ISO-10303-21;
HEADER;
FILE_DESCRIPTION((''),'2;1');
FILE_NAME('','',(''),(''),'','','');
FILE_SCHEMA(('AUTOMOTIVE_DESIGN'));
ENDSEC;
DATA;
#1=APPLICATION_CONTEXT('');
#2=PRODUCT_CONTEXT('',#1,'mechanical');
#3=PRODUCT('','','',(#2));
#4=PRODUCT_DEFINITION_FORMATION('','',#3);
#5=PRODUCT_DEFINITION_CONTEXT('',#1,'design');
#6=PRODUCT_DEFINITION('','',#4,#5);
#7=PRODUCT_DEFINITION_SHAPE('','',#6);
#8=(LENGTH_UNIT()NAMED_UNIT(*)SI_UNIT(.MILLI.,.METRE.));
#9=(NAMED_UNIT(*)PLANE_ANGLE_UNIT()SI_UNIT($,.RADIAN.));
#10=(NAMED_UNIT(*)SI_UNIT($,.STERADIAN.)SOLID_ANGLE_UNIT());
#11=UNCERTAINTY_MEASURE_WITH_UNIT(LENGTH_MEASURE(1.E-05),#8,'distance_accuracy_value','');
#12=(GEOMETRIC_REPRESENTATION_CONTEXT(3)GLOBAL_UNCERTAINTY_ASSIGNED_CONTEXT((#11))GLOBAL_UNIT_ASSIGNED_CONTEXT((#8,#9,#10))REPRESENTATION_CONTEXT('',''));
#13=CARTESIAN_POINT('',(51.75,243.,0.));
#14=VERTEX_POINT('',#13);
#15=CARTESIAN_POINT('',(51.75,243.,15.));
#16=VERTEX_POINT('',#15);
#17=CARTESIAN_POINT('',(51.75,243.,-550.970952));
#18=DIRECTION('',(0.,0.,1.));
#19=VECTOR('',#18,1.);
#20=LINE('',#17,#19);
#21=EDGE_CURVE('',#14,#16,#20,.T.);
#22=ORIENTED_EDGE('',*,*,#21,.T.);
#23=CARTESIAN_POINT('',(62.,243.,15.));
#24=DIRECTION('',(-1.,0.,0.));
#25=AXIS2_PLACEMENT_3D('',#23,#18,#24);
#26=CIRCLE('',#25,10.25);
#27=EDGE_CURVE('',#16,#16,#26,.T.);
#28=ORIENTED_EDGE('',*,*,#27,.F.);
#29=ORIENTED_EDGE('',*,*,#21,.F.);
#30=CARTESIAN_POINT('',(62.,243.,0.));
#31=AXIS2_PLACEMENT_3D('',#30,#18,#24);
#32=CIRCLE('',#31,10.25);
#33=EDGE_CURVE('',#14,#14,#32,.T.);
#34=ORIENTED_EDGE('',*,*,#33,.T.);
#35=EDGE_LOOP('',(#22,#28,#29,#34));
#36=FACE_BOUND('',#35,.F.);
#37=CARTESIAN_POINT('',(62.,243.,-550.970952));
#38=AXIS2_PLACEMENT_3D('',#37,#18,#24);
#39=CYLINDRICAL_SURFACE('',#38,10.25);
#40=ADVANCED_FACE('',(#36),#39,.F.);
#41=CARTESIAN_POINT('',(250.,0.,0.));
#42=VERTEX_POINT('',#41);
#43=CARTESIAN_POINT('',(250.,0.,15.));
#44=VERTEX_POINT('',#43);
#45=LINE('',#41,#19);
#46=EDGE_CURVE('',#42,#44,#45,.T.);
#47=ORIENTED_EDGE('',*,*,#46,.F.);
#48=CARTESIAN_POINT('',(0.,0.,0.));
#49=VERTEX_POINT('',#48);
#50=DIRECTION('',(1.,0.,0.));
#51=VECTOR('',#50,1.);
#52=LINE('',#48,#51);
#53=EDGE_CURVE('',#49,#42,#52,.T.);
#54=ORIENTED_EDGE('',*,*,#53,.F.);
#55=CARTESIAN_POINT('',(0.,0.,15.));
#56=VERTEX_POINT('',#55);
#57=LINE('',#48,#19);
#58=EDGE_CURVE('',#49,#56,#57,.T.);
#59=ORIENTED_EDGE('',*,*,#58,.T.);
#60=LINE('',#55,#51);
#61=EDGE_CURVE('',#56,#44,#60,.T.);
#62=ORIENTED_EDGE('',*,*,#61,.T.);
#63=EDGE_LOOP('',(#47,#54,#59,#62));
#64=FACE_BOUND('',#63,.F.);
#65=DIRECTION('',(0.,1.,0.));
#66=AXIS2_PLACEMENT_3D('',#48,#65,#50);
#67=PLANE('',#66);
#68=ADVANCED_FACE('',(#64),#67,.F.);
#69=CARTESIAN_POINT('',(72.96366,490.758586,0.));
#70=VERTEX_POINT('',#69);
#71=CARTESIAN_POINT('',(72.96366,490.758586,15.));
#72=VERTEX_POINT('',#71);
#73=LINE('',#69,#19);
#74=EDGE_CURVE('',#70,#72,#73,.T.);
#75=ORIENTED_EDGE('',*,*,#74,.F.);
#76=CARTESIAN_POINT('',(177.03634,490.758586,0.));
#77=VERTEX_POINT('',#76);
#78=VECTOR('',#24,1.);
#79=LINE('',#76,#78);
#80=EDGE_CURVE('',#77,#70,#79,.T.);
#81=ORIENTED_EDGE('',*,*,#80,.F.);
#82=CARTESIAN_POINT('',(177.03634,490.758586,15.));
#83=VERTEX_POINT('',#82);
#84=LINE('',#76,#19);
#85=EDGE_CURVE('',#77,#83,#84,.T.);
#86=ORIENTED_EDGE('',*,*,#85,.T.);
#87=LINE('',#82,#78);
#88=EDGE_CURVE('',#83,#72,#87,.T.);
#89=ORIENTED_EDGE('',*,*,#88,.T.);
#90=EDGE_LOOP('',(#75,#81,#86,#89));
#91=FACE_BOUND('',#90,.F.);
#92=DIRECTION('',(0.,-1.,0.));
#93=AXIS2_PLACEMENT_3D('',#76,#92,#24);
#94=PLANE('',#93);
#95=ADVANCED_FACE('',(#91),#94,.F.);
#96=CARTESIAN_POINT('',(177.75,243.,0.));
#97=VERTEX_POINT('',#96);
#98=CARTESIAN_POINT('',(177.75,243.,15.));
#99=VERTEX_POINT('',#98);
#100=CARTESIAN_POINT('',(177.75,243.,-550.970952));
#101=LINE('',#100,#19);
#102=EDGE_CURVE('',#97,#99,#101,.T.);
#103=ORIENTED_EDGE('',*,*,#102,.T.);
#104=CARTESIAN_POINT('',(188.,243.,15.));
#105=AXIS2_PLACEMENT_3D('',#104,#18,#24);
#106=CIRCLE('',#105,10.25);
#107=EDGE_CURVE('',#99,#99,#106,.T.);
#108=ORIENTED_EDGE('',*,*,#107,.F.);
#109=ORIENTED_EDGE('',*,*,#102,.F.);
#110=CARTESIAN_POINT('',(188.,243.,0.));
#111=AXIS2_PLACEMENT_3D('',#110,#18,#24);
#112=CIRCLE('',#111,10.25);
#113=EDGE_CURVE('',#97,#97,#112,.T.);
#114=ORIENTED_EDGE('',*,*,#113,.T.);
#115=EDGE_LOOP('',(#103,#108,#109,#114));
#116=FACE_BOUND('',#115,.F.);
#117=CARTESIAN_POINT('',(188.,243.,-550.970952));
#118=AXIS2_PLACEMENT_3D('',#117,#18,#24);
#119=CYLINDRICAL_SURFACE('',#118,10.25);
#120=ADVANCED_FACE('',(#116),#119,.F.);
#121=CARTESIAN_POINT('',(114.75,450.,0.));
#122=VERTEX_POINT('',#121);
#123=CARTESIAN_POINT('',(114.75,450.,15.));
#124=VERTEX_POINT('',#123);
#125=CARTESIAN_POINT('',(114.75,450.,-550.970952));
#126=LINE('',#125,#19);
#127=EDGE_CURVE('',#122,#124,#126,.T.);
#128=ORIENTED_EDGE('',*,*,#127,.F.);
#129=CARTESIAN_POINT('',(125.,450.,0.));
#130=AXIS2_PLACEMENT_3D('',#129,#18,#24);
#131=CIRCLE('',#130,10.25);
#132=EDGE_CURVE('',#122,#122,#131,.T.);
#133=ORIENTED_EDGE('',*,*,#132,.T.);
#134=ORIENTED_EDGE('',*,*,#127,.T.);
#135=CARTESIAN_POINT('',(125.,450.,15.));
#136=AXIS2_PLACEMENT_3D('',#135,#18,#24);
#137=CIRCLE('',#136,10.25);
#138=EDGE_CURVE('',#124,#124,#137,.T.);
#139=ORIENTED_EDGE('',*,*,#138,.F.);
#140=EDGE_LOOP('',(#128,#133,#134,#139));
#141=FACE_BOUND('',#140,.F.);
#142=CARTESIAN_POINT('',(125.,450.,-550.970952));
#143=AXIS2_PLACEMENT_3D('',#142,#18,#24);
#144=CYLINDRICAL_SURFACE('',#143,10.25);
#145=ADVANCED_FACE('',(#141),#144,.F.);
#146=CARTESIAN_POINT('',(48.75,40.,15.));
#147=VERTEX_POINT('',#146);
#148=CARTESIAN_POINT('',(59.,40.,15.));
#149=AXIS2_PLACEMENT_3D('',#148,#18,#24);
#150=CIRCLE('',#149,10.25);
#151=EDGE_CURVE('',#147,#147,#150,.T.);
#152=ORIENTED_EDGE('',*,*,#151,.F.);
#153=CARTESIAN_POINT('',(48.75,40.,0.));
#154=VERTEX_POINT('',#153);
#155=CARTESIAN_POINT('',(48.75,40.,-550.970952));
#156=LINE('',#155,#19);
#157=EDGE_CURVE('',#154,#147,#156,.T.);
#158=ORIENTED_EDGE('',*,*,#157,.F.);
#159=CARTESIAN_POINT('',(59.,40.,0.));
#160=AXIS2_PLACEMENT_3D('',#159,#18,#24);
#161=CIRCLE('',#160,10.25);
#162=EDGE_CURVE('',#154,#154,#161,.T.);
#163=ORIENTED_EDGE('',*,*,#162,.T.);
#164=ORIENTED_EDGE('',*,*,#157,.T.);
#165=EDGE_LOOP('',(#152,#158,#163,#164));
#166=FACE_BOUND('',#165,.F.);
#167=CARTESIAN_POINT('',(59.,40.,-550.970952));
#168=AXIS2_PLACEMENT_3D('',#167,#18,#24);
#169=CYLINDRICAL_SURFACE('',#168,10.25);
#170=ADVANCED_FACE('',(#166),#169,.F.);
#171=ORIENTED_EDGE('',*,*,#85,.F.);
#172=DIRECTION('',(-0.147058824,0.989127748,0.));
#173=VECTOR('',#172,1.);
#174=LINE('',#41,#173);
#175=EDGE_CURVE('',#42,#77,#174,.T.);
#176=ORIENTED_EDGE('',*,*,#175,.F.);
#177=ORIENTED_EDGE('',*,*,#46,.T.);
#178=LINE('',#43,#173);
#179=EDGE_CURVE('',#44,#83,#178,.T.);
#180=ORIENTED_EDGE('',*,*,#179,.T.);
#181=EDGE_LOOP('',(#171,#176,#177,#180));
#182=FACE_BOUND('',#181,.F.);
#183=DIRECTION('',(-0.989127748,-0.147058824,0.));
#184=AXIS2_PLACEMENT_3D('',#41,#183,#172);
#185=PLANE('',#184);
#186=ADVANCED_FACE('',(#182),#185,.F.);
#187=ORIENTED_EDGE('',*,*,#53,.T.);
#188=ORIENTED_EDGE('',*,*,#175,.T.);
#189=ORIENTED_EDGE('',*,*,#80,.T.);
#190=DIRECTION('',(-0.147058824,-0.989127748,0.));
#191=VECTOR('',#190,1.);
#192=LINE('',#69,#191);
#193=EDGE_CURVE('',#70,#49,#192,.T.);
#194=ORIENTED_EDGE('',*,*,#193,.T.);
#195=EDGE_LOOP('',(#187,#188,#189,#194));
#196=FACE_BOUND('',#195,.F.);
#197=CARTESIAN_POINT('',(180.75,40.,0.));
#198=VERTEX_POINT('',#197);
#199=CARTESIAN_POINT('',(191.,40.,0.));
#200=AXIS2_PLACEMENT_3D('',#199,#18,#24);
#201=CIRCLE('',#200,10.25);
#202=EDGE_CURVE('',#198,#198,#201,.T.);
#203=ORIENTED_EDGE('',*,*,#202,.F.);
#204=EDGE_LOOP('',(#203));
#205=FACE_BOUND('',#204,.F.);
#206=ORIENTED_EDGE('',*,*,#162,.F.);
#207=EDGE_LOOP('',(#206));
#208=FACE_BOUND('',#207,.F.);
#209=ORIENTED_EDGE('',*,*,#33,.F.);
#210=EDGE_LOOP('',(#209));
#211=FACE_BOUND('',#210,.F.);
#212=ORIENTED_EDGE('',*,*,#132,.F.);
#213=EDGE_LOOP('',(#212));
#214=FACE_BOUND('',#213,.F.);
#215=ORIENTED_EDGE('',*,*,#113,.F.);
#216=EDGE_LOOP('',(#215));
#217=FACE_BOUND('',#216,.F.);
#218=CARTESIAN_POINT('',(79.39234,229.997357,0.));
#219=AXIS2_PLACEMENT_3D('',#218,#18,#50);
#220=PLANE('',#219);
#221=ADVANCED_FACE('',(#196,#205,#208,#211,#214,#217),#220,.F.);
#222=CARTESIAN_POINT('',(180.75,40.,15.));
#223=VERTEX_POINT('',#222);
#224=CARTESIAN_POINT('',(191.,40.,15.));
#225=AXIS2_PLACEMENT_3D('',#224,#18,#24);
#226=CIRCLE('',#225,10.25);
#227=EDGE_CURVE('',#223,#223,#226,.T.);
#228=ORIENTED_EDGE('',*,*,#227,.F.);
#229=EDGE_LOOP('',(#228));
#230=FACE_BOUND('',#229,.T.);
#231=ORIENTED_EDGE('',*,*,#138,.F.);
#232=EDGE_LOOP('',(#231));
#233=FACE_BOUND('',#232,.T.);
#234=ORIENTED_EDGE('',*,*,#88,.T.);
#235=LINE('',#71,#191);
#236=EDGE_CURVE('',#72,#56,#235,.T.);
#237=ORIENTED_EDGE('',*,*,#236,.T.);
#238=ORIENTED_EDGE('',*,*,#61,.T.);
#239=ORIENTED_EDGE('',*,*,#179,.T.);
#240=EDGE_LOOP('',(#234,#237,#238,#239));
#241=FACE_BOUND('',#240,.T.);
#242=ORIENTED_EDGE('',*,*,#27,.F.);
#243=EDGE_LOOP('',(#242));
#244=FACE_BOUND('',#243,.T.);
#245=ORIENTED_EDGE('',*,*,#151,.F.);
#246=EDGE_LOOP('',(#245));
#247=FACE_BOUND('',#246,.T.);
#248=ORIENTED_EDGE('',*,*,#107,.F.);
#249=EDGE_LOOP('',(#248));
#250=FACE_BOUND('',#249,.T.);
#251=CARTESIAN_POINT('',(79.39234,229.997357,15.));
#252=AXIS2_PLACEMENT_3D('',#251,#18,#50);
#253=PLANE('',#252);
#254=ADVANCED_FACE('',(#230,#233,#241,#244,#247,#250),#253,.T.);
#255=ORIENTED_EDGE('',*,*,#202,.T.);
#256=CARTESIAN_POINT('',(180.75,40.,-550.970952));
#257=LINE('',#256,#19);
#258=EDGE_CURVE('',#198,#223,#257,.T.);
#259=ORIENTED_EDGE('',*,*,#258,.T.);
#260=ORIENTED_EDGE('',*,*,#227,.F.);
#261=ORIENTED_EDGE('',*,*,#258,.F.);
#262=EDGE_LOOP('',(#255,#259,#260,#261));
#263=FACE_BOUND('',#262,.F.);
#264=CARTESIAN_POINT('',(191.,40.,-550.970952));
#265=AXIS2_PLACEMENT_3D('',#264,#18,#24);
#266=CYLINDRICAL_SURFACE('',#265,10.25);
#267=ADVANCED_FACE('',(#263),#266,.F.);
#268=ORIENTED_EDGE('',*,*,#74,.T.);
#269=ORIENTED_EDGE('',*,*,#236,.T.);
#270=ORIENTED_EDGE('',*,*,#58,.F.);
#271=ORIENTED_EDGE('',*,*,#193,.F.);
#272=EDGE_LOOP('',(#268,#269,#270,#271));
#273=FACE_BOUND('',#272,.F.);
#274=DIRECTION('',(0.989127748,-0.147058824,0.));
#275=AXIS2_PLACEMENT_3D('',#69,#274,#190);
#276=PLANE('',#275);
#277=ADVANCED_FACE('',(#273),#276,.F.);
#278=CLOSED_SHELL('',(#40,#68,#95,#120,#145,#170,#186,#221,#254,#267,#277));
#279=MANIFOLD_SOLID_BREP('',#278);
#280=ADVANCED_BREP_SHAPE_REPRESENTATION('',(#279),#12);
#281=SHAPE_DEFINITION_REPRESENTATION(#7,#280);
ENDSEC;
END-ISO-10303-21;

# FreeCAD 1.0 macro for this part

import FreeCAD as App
import Part
import Sketcher

V = App.Vector
Q = App.Units.Quantity

doc = App.newDocument("Part")
body = doc.addObject("PartDesign::Body", "Body")

# Sketch on XY plane
sketch1 = body.newObject("Sketcher::SketchObject", "Sketch")
sketch1.AttachmentSupport = (doc.getObject("XY_Plane"), [""])
sketch1.MapMode = "FlatFace"
sketch1.addGeometry([
    Part.LineSegment(V(73, 491, 0), V(0, 0, 0)),
    Part.LineSegment(V(0, 0, 0), V(250, 0, 0)),
    Part.LineSegment(V(250, 0, 0), V(177, 491, 0)),
    Part.LineSegment(V(177, 491, 0), V(73, 491, 0)),
], False)
sketch1.addConstraint([
    Sketcher.Constraint("Coincident", 0, 2, 1, 1),
    Sketcher.Constraint("Coincident", 1, 2, 2, 1),
    Sketcher.Constraint("Coincident", 2, 2, 3, 1),
    Sketcher.Constraint("Coincident", 3, 2, 0, 1),
    Sketcher.Constraint("Horizontal", 1),
    Sketcher.Constraint("Horizontal", 3),
    Sketcher.Constraint("Coincident", 0, 2, -1, 1),
    Sketcher.Constraint("Equal", 0, 2),
    Sketcher.Constraint("DistanceX", 1, 1, 1, 2, Q("250 mm")),
    Sketcher.Constraint("DistanceX", 3, 2, 3, 1, Q("104.072681 mm")),
    Sketcher.Constraint("Distance", 0, Q("496.152885 mm")),
])
pad1 = body.newObject("PartDesign::Pad", "Pad")
pad1.Profile = sketch1
pad1.Length = 15

# Sketch on XY plane
sketch2 = body.newObject("Sketcher::SketchObject", "Sketch001")
sketch2.AttachmentSupport = (doc.getObject("XY_Plane"), [""])
sketch2.MapMode = "FlatFace"
sketch2.addGeometry([
    Part.Circle(V(125, 450, 0), V(0, 0, 1), 10),  # 0
    Part.Circle(V(62, 243, 0), V(0, 0, 1), 10),  # 1
    Part.Circle(V(188, 243, 0), V(0, 0, 1), 10),  # 2
    Part.Circle(V(191, 40, 0), V(0, 0, 1), 10),  # 3
    Part.Circle(V(59, 40, 0), V(0, 0, 1), 10),  # 4
], False)
sketch2.addConstraint([
    Sketcher.Constraint("Equal", 0, 1),
    Sketcher.Constraint("Equal", 1, 2),
    Sketcher.Constraint("Equal", 2, 3),
    Sketcher.Constraint("Equal", 3, 4),
    Sketcher.Constraint("Horizontal", 1, 3, 2, 3),
    Sketcher.Constraint("Horizontal", 3, 3, 4, 3),
    Sketcher.Constraint("Diameter", 0, Q("20.5 mm")),
    Sketcher.Constraint("DistanceX", -1, 1, 0, 3, Q("125 mm")),
    Sketcher.Constraint("DistanceY", -1, 1, 0, 3, Q("450 mm")),
    Sketcher.Constraint("DistanceX", -1, 1, 1, 3, Q("62 mm")),
    Sketcher.Constraint("DistanceY", -1, 1, 1, 3, Q("243 mm")),
    Sketcher.Constraint("DistanceX", -1, 1, 2, 3, Q("188 mm")),
    Sketcher.Constraint("DistanceX", -1, 1, 3, 3, Q("191 mm")),
    Sketcher.Constraint("DistanceY", -1, 1, 3, 3, Q("40 mm")),
    Sketcher.Constraint("DistanceX", -1, 1, 4, 3, Q("59 mm")),
])
doc.recompute()
hole = body.newObject("PartDesign::Hole", "Hole")
hole.Profile = sketch2
hole.ThreadType = "None"
hole.Diameter = 20.5
hole.DepthType = "ThroughAll"
hole.Reversed = True

doc.recompute()
